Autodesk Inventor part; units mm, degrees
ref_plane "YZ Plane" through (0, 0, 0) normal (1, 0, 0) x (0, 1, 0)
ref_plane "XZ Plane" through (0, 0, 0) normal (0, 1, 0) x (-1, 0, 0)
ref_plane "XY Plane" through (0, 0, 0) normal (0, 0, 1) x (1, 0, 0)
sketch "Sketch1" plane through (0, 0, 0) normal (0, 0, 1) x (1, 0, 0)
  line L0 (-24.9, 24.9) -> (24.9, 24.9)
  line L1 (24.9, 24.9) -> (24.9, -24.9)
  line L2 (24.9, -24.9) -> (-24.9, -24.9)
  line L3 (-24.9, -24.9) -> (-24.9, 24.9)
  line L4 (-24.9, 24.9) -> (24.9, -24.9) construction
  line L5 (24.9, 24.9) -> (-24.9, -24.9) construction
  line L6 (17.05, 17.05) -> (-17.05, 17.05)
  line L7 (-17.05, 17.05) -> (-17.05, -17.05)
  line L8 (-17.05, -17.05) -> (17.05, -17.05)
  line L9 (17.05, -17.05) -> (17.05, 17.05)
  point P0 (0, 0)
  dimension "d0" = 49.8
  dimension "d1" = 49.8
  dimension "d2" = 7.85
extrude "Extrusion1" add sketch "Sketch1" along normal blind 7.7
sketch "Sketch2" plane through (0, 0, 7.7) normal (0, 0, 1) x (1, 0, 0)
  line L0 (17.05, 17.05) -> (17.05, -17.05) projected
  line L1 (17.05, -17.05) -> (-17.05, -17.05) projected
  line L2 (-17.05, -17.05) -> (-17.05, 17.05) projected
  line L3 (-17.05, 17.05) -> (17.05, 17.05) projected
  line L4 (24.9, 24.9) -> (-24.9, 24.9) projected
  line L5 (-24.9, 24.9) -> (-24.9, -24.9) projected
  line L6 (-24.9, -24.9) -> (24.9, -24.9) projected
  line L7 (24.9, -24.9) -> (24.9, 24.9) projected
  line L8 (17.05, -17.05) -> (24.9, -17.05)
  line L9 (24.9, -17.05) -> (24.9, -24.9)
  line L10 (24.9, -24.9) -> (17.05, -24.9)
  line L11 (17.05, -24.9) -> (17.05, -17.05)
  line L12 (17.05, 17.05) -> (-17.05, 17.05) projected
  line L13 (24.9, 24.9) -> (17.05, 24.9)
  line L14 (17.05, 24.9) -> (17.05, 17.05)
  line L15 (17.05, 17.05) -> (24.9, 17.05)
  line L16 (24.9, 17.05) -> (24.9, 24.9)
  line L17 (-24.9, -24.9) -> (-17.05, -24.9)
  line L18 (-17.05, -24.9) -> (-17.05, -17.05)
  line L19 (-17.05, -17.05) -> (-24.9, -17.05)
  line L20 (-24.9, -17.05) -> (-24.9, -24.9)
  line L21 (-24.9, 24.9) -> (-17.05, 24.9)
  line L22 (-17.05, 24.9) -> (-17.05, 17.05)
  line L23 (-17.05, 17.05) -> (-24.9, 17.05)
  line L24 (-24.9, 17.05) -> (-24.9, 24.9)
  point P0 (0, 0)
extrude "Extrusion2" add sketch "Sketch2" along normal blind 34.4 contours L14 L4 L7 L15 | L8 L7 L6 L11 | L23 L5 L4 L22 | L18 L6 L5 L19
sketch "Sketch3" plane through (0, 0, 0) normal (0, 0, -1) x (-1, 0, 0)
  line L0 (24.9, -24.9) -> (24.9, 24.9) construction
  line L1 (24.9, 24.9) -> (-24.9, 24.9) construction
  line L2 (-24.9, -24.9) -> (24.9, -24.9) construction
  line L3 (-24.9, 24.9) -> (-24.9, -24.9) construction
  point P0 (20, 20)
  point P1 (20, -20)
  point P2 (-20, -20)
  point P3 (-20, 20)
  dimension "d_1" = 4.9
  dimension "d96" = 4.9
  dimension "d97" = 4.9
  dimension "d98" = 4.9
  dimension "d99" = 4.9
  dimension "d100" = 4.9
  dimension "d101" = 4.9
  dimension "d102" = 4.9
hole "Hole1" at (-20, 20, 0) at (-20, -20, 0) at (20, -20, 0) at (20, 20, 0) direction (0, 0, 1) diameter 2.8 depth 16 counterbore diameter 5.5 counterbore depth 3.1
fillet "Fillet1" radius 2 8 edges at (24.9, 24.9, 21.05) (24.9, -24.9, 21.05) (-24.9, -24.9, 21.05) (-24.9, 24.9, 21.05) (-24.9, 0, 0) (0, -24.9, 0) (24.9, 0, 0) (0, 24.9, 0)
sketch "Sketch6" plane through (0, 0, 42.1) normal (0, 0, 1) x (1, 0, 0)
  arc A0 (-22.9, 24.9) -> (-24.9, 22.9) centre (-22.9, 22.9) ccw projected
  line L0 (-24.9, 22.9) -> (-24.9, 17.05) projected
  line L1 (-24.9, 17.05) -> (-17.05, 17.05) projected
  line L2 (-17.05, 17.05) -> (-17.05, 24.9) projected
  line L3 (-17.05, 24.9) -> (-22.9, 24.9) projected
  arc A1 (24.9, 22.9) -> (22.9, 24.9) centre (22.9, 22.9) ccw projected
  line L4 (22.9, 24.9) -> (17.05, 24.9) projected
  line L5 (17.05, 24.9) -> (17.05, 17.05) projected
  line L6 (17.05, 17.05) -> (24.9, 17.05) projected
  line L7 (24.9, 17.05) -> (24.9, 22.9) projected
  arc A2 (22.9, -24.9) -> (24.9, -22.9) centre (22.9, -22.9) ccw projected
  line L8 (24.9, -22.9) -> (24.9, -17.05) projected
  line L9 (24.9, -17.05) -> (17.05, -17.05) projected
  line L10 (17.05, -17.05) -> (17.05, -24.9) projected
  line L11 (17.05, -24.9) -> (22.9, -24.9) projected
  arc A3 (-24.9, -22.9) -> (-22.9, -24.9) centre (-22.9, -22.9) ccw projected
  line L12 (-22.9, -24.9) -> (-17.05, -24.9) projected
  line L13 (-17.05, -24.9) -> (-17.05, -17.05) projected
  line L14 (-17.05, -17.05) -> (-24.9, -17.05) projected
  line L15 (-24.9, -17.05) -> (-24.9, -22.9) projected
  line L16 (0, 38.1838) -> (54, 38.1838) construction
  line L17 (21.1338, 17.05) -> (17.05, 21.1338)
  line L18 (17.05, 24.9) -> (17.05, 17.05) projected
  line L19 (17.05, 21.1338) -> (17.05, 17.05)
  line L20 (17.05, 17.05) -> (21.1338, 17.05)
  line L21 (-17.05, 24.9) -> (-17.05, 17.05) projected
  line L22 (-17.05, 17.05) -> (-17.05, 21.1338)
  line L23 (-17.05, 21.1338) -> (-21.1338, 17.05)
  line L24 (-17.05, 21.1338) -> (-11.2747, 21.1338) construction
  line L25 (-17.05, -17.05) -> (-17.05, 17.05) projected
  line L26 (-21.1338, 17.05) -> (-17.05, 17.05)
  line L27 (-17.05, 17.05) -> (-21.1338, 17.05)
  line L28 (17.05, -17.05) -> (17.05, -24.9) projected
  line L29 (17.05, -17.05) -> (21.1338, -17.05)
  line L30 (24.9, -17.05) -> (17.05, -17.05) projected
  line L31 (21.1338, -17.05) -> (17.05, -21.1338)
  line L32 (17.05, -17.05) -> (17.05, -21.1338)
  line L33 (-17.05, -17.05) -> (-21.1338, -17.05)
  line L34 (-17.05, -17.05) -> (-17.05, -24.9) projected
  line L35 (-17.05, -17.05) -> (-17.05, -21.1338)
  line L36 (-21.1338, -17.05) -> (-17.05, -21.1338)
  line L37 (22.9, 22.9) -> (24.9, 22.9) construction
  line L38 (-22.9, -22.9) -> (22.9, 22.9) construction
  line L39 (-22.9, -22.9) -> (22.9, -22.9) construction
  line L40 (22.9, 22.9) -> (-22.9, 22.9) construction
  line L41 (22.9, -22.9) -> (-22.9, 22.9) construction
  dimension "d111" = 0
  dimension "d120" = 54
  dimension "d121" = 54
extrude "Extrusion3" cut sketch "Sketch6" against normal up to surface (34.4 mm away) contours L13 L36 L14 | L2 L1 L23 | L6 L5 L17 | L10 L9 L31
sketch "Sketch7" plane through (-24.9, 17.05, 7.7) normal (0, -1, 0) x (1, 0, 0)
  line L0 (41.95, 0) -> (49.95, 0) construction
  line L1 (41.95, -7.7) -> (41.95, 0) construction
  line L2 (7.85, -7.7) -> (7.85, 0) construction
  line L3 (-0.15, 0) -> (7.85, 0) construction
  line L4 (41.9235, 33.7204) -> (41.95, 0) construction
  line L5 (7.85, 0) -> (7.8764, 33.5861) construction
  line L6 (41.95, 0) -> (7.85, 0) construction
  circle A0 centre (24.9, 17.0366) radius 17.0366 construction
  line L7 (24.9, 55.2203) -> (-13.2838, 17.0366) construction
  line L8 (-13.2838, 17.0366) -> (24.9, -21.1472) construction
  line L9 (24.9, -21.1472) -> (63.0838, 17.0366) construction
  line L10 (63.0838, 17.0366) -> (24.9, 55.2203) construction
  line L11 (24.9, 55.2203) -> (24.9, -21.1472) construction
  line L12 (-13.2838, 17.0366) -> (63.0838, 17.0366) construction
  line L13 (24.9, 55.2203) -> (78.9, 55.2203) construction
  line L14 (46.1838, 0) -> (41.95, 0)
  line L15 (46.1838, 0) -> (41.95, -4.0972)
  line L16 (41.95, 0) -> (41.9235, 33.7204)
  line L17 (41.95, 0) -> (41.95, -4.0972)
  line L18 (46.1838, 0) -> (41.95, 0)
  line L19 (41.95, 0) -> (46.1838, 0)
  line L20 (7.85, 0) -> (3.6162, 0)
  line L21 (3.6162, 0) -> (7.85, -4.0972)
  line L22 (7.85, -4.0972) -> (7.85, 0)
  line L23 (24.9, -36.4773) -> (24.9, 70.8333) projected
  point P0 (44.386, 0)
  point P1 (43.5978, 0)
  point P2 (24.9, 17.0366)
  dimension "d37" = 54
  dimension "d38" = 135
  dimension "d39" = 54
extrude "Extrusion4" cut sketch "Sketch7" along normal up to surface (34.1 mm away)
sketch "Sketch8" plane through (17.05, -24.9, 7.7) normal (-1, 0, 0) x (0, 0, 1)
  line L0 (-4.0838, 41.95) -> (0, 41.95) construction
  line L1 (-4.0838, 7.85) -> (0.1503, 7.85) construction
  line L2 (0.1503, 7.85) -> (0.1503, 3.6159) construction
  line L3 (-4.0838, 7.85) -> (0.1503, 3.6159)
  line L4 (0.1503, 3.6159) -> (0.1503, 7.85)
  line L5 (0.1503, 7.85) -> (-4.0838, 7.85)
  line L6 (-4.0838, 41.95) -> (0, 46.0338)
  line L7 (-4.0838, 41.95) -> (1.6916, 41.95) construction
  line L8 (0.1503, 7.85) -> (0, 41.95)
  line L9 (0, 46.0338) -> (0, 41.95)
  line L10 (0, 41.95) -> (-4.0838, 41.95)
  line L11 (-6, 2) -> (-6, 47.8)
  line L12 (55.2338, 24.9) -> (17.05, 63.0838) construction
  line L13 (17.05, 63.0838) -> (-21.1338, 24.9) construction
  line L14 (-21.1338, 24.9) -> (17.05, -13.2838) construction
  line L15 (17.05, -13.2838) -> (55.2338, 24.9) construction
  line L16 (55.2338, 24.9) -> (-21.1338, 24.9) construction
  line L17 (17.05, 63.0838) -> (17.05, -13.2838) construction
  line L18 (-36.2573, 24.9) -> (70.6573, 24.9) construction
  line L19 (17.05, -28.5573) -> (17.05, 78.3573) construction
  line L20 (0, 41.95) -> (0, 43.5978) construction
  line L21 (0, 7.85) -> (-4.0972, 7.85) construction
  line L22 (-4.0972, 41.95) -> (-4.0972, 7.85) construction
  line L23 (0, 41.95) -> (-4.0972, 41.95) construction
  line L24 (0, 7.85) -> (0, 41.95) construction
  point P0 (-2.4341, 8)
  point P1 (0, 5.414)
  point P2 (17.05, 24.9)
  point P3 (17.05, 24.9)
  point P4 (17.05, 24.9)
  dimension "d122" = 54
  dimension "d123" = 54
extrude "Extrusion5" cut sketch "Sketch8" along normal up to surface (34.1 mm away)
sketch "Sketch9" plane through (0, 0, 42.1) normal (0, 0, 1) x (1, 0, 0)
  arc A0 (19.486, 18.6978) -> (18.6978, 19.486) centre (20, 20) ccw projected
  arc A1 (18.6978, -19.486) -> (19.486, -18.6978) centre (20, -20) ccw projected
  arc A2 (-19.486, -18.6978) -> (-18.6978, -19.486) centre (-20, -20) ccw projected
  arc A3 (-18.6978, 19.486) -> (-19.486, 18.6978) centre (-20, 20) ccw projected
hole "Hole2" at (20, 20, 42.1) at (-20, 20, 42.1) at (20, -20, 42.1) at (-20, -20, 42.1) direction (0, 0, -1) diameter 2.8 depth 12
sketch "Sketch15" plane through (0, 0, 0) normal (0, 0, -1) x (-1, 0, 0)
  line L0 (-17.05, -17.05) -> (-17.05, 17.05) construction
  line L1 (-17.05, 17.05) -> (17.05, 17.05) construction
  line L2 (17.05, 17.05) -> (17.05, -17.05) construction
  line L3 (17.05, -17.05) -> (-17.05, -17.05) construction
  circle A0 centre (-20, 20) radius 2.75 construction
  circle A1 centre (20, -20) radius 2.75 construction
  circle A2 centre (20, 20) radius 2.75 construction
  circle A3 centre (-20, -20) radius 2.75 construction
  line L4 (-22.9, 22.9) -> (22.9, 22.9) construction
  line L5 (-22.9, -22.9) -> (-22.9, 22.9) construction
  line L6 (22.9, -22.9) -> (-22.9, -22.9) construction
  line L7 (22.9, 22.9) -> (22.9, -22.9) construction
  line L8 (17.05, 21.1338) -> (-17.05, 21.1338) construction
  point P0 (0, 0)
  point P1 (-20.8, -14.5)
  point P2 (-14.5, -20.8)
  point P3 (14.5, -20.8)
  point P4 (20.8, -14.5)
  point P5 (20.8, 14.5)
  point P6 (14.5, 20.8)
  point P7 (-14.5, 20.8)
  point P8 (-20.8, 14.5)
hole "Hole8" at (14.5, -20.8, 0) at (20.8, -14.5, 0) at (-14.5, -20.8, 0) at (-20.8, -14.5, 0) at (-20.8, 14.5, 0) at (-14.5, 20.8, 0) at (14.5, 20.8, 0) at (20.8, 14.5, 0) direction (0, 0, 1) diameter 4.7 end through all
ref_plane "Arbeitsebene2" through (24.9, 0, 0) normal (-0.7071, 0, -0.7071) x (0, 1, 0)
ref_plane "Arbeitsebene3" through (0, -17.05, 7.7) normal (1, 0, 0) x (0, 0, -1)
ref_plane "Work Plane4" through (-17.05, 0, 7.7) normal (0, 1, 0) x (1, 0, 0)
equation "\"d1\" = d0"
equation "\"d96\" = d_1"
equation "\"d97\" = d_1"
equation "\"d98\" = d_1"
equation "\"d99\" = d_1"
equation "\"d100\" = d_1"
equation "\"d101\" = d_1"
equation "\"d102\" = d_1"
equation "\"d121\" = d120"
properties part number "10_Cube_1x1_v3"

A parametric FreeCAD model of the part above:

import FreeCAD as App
import Part
import Sketcher
Q = App.Units.Quantity


def edges_at(feature, points):
    """Names of the edges that pass closest to the given points."""
    edges = feature.Shape.Edges
    near = lambda p: min(range(len(edges)), key=lambda i: edges[i].distToShape(Part.Vertex(*p))[0])
    return sorted({f"Edge{near(p) + 1}" for p in points})


def add_polygon(sketch, points):
    """Adds a closed chain of lines whose ends are joined by coincident constraints."""
    first, n = sketch.GeometryCount, len(points)
    for a, b in zip(points, points[1:] + points[:1]):
        sketch.addGeometry(Part.LineSegment(App.Vector(*a, 0), App.Vector(*b, 0)), False)
    for i in range(n):
        sketch.addConstraint(Sketcher.Constraint("Coincident", first + i, 2, first + (i + 1) % n, 1))

doc = App.newDocument("Part")
body = doc.addObject("PartDesign::Body", "Body")

# Sketch on XY plane
sketch1 = body.newObject("Sketcher::SketchObject", "Sketch")
sketch1.AttachmentSupport = (doc.getObject("XY_Plane"), [""])
sketch1.MapMode = "FlatFace"
add_polygon(sketch1, [(24.9, 24.9), (-24.9, 24.9), (-24.9, -24.9), (24.9, -24.9)])  # lines 0-3
add_polygon(sketch1, [(-17.05, 17.05), (17.05, 17.05), (17.05, -17.05), (-17.05, -17.05)])  # lines 4-7
sketch1.addConstraint([
    Sketcher.Constraint("Horizontal", 0),
    Sketcher.Constraint("Vertical", 1),
    Sketcher.Constraint("Horizontal", 2),
    Sketcher.Constraint("Vertical", 3),
    Sketcher.Constraint("Horizontal", 4),
    Sketcher.Constraint("Vertical", 5),
    Sketcher.Constraint("Horizontal", 6),
    Sketcher.Constraint("Vertical", 7),
    Sketcher.Constraint("Symmetric", 0, 2, 2, 2, -1, 1),
    Sketcher.Constraint("Symmetric", 4, 2, 6, 2, -1, 1),
    Sketcher.Constraint("Equal", 2, 1),
    Sketcher.Constraint("Equal", 6, 5),
    Sketcher.Constraint("DistanceX", 0, 2, 0, 1, Q("49.8 mm")),
    Sketcher.Constraint("DistanceX", 4, 2, 3, 2, Q("7.85 mm")),
])
pad1 = body.newObject("PartDesign::Pad", "Pad")
pad1.Profile = sketch1
pad1.Length = 7.7

# Sketch on XY plane
sketch2 = body.newObject("Sketcher::SketchObject", "Sketch001")
sketch2.AttachmentSupport = (doc.getObject("XY_Plane"), [""])
sketch2.MapMode = "FlatFace"
sketch2.AttachmentOffset = App.Placement(App.Vector(0, 0, 7.7), App.Rotation())
add_polygon(sketch2, [(17.05, 24.9), (17.05, 17.05), (24.9, 17.05), (24.9, 24.9)])  # lines 0-3
add_polygon(sketch2, [(24.9, -17.05), (17.05, -17.05), (17.05, -24.9), (24.9, -24.9)])  # lines 4-7
add_polygon(sketch2, [(-24.9, 17.05), (-17.05, 17.05), (-17.05, 24.9), (-24.9, 24.9)])  # lines 8-11
add_polygon(sketch2, [(-17.05, -24.9), (-17.05, -17.05), (-24.9, -17.05), (-24.9, -24.9)])  # lines 12-15
sketch2.addConstraint([
    Sketcher.Constraint("Vertical", 0),
    Sketcher.Constraint("Horizontal", 1),
    Sketcher.Constraint("Vertical", 2),
    Sketcher.Constraint("Horizontal", 3),
    Sketcher.Constraint("Horizontal", 4),
    Sketcher.Constraint("Vertical", 5),
    Sketcher.Constraint("Horizontal", 6),
    Sketcher.Constraint("Vertical", 7),
    Sketcher.Constraint("Horizontal", 8),
    Sketcher.Constraint("Vertical", 9),
    Sketcher.Constraint("Horizontal", 10),
    Sketcher.Constraint("Vertical", 11),
    Sketcher.Constraint("Vertical", 12),
    Sketcher.Constraint("Horizontal", 13),
    Sketcher.Constraint("Vertical", 14),
    Sketcher.Constraint("Horizontal", 15),
    Sketcher.Constraint("Symmetric", 4, 2, 8, 2, -1, 1),
    Sketcher.Constraint("Symmetric", 6, 2, 10, 2, -1, 1),
    Sketcher.Constraint("Symmetric", 0, 2, 12, 2, -1, 1),
    Sketcher.Constraint("Symmetric", 2, 2, 14, 2, -1, 1),
    Sketcher.Constraint("Symmetric", 0, 2, 8, 2, -2),
    Sketcher.Constraint("Symmetric", 2, 2, 10, 2, -2),
    Sketcher.Constraint("Equal", 15, 0),
    Sketcher.Constraint("DistanceX", 1, 1, 1, 2, Q("7.85 mm")),
    Sketcher.Constraint("DistanceX", -1, 1, 1, 2, Q("24.9 mm")),
    Sketcher.Constraint("DistanceY", -1, 1, 2, 2, Q("24.9 mm")),
])
pad2 = body.newObject("PartDesign::Pad", "Pad001")
pad2.Profile = sketch2
pad2.Length = 34.4

# Sketch on XY plane
sketch3 = body.newObject("Sketcher::SketchObject", "Sketch002")
sketch3.AttachmentSupport = (doc.getObject("XY_Plane"), [""])
sketch3.MapMode = "FlatFace"
sketch3.addGeometry([
    Part.Circle(App.Vector(-20, 20, 0), App.Vector(0, 0, 1), 1.4),
    Part.Circle(App.Vector(-20, -20, 0), App.Vector(0, 0, 1), 1.4),
    Part.Circle(App.Vector(20, -20, 0), App.Vector(0, 0, 1), 1.4),
    Part.Circle(App.Vector(20, 20, 0), App.Vector(0, 0, 1), 1.4),
], False)
sketch3.addConstraint([
    Sketcher.Constraint("Equal", 0, 1),
    Sketcher.Constraint("Equal", 1, 2),
    Sketcher.Constraint("Equal", 2, 3),
    Sketcher.Constraint("Symmetric", 0, 3, 2, 3, -1, 1),
    Sketcher.Constraint("Symmetric", 1, 3, 3, 3, -1, 1),
    Sketcher.Constraint("Symmetric", 1, 3, 2, 3, -2),
    Sketcher.Constraint("Diameter", 0, Q("2.8 mm")),
    Sketcher.Constraint("DistanceX", 0, 3, -1, 1, Q("20 mm")),
    Sketcher.Constraint("DistanceY", -1, 1, 0, 3, Q("20 mm")),
])
doc.recompute()
hole = body.newObject("PartDesign::Hole", "Hole")
hole.Profile = sketch3
hole.ThreadType = "None"
hole.Diameter = 2.8
hole.DepthType = "Dimension"
hole.Depth = 16
hole.DrillPoint = "Flat"
hole.HoleCutType = "Counterbore"
hole.HoleCutDiameter = 5.5
hole.HoleCutDepth = 3.1
hole.Reversed = True
doc.recompute()

fillet = body.newObject("PartDesign::Fillet", "Fillet")
fillet.Base = (hole, edges_at(hole, [
    (24.9, 24.9, 21.05),
    (24.9, -24.9, 21.05),
    (-24.9, -24.9, 21.05),
    (-24.9, 24.9, 21.05),
    (-24.9, 0, 0),
    (0, -24.9, 0),
    (24.9, 0, 0),
    (0, 24.9, 0),
]))
fillet.Radius = 2

# Sketch on XY plane
sketch4 = body.newObject("Sketcher::SketchObject", "Sketch003")
sketch4.AttachmentSupport = (doc.getObject("XY_Plane"), [""])
sketch4.MapMode = "FlatFace"
sketch4.AttachmentOffset = App.Placement(App.Vector(0, 0, 42.1), App.Rotation())
add_polygon(sketch4, [(-17.05, -21.1338), (-17.05, -17.05), (-21.1338, -17.05)])  # lines 0-2
add_polygon(sketch4, [(-17.05, 17.05), (-17.05, 21.1338), (-21.1338, 17.05)])  # lines 3-5
add_polygon(sketch4, [(17.05, 17.05), (21.1338, 17.05), (17.05, 21.1338)])  # lines 6-8
add_polygon(sketch4, [(17.05, -17.05), (17.05, -21.1338), (21.1338, -17.05)])  # lines 9-11
sketch4.addConstraint([
    Sketcher.Constraint("Vertical", 0),
    Sketcher.Constraint("Horizontal", 1),
    Sketcher.Constraint("Vertical", 3),
    Sketcher.Constraint("Horizontal", 5),
    Sketcher.Constraint("Horizontal", 6),
    Sketcher.Constraint("Vertical", 8),
    Sketcher.Constraint("Vertical", 9),
    Sketcher.Constraint("Horizontal", 11),
    Sketcher.Constraint("Symmetric", 1, 2, 6, 2, -1, 1),
    Sketcher.Constraint("Symmetric", 2, 2, 7, 2, -1, 1),
    Sketcher.Constraint("Symmetric", 3, 2, 9, 2, -1, 1),
    Sketcher.Constraint("Symmetric", 4, 2, 10, 2, -1, 1),
    Sketcher.Constraint("Symmetric", 4, 2, 6, 2, -2),
    Sketcher.Constraint("Symmetric", 3, 2, 7, 2, -2),
    Sketcher.Constraint("Perpendicular", 2, 4),
    Sketcher.Constraint("DistanceY", 1, 2, 4, 2, Q("34.1 mm")),
    Sketcher.Constraint("DistanceX", 3, 2, 7, 2, Q("34.1 mm")),
    Sketcher.Constraint("DistanceX", 1, 2, 1, 1, Q("4.0838 mm")),
])
pocket1 = body.newObject("PartDesign::Pocket", "Pocket")
pocket1.Profile = sketch4
pocket1.Length = 34.4

# Sketch on XZ plane
sketch5 = body.newObject("Sketcher::SketchObject", "Sketch004")
sketch5.AttachmentSupport = (doc.getObject("XZ_Plane"), [""])
sketch5.MapMode = "FlatFace"
sketch5.AttachmentOffset = App.Placement(App.Vector(0, 0, -17.05), App.Rotation())
add_polygon(sketch5, [(17.05, 3.6028), (21.2838, 7.7), (17.05, 7.7)])  # lines 0-2
add_polygon(sketch5, [(-17.05, 3.6028), (-17.05, 7.7), (-21.2838, 7.7)])  # lines 3-5
sketch5.addConstraint([
    Sketcher.Constraint("Horizontal", 1),
    Sketcher.Constraint("Vertical", 2),
    Sketcher.Constraint("Vertical", 3),
    Sketcher.Constraint("Horizontal", 4),
    Sketcher.Constraint("Symmetric", 1, 2, 3, 2, -2),
    Sketcher.Constraint("Horizontal", 2, 2, 5, 2),
    Sketcher.Constraint("Equal", 1, 4),
    Sketcher.Constraint("DistanceY", -1, 1, 0, 2, Q("7.7 mm")),
    Sketcher.Constraint("Angle", 0, Q("44.0606 deg")),
    Sketcher.Constraint("DistanceX", 3, 2, 1, 2, Q("34.1 mm")),
    Sketcher.Constraint("DistanceX", 1, 2, 1, 1, Q("4.2338 mm")),
])
pocket2 = body.newObject("PartDesign::Pocket", "Pocket001")
pocket2.Profile = sketch5
pocket2.Length = 34.1
pocket2.Reversed = True

# Sketch on YZ plane
sketch6 = body.newObject("Sketcher::SketchObject", "Sketch005")
sketch6.AttachmentSupport = (doc.getObject("YZ_Plane"), [""])
sketch6.MapMode = "FlatFace"
sketch6.AttachmentOffset = App.Placement(App.Vector(0, 0, 17.05), App.Rotation())
add_polygon(sketch6, [(-17.05, 7.8503), (-17.05, 3.6162), (-21.2841, 7.8503)])  # lines 0-2
add_polygon(sketch6, [(17.05, 3.6162), (17.05, 7.7), (21.1338, 7.7)])  # lines 3-5
sketch6.addConstraint([
    Sketcher.Constraint("Vertical", 0),
    Sketcher.Constraint("Horizontal", 2),
    Sketcher.Constraint("Vertical", 3),
    Sketcher.Constraint("Horizontal", 4),
    Sketcher.Constraint("Symmetric", 0, 2, 5, 2, -2),
    Sketcher.Constraint("Perpendicular", 1, 5),
    Sketcher.Constraint("Equal", 2, 0),
    Sketcher.Constraint("DistanceY", -1, 1, 3, 2, Q("7.7 mm")),
    Sketcher.Constraint("DistanceX", 2, 2, 3, 2, Q("34.1 mm")),
    Sketcher.Constraint("DistanceX", 2, 1, 2, 2, Q("4.234 mm")),
    Sketcher.Constraint("DistanceX", 4, 1, 4, 2, Q("4.0838 mm")),
])
pocket3 = body.newObject("PartDesign::Pocket", "Pocket002")
pocket3.Profile = sketch6
pocket3.Length = 34.1

# Sketch on XY plane
sketch7 = body.newObject("Sketcher::SketchObject", "Sketch006")
sketch7.AttachmentSupport = (doc.getObject("XY_Plane"), [""])
sketch7.MapMode = "FlatFace"
sketch7.AttachmentOffset = App.Placement(App.Vector(0, 0, 42.1), App.Rotation())
sketch7.addGeometry([
    Part.Circle(App.Vector(20, 20, 0), App.Vector(0, 0, 1), 1.4),
    Part.Circle(App.Vector(-20, 20, 0), App.Vector(0, 0, 1), 1.4),
    Part.Circle(App.Vector(20, -20, 0), App.Vector(0, 0, 1), 1.4),
    Part.Circle(App.Vector(-20, -20, 0), App.Vector(0, 0, 1), 1.4),
], False)
sketch7.addConstraint([
    Sketcher.Constraint("Equal", 0, 1),
    Sketcher.Constraint("Equal", 1, 2),
    Sketcher.Constraint("Equal", 2, 3),
    Sketcher.Constraint("Symmetric", 1, 3, 2, 3, -1, 1),
    Sketcher.Constraint("Symmetric", 0, 3, 3, 3, -1, 1),
    Sketcher.Constraint("Symmetric", 0, 3, 1, 3, -2),
    Sketcher.Constraint("Diameter", 0, Q("2.8 mm")),
    Sketcher.Constraint("DistanceX", -1, 1, 0, 3, Q("20 mm")),
    Sketcher.Constraint("DistanceY", -1, 1, 0, 3, Q("20 mm")),
])
doc.recompute()
hole2 = body.newObject("PartDesign::Hole", "Hole001")
hole2.Profile = sketch7
hole2.ThreadType = "None"
hole2.Diameter = 2.8
hole2.DepthType = "Dimension"
hole2.Depth = 12
hole2.DrillPoint = "Flat"

# Sketch on XY plane
sketch8 = body.newObject("Sketcher::SketchObject", "Sketch007")
sketch8.AttachmentSupport = (doc.getObject("XY_Plane"), [""])
sketch8.MapMode = "FlatFace"
sketch8.addGeometry([
    Part.Circle(App.Vector(14.5, -20.8, 0), App.Vector(0, 0, 1), 2.35),  # 0
    Part.Circle(App.Vector(20.8, -14.5, 0), App.Vector(0, 0, 1), 2.35),  # 1
    Part.Circle(App.Vector(-14.5, -20.8, 0), App.Vector(0, 0, 1), 2.35),  # 2
    Part.Circle(App.Vector(-20.8, -14.5, 0), App.Vector(0, 0, 1), 2.35),  # 3
    Part.Circle(App.Vector(-20.8, 14.5, 0), App.Vector(0, 0, 1), 2.35),  # 4
    Part.Circle(App.Vector(-14.5, 20.8, 0), App.Vector(0, 0, 1), 2.35),  # 5
    Part.Circle(App.Vector(14.5, 20.8, 0), App.Vector(0, 0, 1), 2.35),  # 6
    Part.Circle(App.Vector(20.8, 14.5, 0), App.Vector(0, 0, 1), 2.35),  # 7
], False)
sketch8.addConstraint([
    Sketcher.Constraint("Equal", 0, 1),
    Sketcher.Constraint("Equal", 1, 2),
    Sketcher.Constraint("Equal", 2, 3),
    Sketcher.Constraint("Equal", 3, 4),
    Sketcher.Constraint("Equal", 4, 5),
    Sketcher.Constraint("Equal", 5, 6),
    Sketcher.Constraint("Equal", 6, 7),
    Sketcher.Constraint("Symmetric", 1, 3, 4, 3, -1, 1),
    Sketcher.Constraint("Symmetric", 0, 3, 5, 3, -1, 1),
    Sketcher.Constraint("Symmetric", 2, 3, 6, 3, -1, 1),
    Sketcher.Constraint("Symmetric", 3, 3, 7, 3, -1, 1),
    Sketcher.Constraint("Symmetric", 0, 3, 2, 3, -2),
    Sketcher.Constraint("Symmetric", 1, 3, 3, 3, -2),
    Sketcher.Constraint("Diameter", 0, Q("4.7 mm")),
    Sketcher.Constraint("DistanceX", 2, 3, 0, 3, Q("29 mm")),
    Sketcher.Constraint("DistanceY", 3, 3, 4, 3, Q("29 mm")),
    Sketcher.Constraint("DistanceY", 0, 3, -1, 1, Q("20.8 mm")),
    Sketcher.Constraint("DistanceX", -1, 1, 1, 3, Q("20.8 mm")),
])
doc.recompute()
hole3 = body.newObject("PartDesign::Hole", "Hole002")
hole3.Profile = sketch8
hole3.ThreadType = "None"
hole3.Diameter = 4.7
hole3.DepthType = "ThroughAll"
hole3.Reversed = True

doc.recompute()
